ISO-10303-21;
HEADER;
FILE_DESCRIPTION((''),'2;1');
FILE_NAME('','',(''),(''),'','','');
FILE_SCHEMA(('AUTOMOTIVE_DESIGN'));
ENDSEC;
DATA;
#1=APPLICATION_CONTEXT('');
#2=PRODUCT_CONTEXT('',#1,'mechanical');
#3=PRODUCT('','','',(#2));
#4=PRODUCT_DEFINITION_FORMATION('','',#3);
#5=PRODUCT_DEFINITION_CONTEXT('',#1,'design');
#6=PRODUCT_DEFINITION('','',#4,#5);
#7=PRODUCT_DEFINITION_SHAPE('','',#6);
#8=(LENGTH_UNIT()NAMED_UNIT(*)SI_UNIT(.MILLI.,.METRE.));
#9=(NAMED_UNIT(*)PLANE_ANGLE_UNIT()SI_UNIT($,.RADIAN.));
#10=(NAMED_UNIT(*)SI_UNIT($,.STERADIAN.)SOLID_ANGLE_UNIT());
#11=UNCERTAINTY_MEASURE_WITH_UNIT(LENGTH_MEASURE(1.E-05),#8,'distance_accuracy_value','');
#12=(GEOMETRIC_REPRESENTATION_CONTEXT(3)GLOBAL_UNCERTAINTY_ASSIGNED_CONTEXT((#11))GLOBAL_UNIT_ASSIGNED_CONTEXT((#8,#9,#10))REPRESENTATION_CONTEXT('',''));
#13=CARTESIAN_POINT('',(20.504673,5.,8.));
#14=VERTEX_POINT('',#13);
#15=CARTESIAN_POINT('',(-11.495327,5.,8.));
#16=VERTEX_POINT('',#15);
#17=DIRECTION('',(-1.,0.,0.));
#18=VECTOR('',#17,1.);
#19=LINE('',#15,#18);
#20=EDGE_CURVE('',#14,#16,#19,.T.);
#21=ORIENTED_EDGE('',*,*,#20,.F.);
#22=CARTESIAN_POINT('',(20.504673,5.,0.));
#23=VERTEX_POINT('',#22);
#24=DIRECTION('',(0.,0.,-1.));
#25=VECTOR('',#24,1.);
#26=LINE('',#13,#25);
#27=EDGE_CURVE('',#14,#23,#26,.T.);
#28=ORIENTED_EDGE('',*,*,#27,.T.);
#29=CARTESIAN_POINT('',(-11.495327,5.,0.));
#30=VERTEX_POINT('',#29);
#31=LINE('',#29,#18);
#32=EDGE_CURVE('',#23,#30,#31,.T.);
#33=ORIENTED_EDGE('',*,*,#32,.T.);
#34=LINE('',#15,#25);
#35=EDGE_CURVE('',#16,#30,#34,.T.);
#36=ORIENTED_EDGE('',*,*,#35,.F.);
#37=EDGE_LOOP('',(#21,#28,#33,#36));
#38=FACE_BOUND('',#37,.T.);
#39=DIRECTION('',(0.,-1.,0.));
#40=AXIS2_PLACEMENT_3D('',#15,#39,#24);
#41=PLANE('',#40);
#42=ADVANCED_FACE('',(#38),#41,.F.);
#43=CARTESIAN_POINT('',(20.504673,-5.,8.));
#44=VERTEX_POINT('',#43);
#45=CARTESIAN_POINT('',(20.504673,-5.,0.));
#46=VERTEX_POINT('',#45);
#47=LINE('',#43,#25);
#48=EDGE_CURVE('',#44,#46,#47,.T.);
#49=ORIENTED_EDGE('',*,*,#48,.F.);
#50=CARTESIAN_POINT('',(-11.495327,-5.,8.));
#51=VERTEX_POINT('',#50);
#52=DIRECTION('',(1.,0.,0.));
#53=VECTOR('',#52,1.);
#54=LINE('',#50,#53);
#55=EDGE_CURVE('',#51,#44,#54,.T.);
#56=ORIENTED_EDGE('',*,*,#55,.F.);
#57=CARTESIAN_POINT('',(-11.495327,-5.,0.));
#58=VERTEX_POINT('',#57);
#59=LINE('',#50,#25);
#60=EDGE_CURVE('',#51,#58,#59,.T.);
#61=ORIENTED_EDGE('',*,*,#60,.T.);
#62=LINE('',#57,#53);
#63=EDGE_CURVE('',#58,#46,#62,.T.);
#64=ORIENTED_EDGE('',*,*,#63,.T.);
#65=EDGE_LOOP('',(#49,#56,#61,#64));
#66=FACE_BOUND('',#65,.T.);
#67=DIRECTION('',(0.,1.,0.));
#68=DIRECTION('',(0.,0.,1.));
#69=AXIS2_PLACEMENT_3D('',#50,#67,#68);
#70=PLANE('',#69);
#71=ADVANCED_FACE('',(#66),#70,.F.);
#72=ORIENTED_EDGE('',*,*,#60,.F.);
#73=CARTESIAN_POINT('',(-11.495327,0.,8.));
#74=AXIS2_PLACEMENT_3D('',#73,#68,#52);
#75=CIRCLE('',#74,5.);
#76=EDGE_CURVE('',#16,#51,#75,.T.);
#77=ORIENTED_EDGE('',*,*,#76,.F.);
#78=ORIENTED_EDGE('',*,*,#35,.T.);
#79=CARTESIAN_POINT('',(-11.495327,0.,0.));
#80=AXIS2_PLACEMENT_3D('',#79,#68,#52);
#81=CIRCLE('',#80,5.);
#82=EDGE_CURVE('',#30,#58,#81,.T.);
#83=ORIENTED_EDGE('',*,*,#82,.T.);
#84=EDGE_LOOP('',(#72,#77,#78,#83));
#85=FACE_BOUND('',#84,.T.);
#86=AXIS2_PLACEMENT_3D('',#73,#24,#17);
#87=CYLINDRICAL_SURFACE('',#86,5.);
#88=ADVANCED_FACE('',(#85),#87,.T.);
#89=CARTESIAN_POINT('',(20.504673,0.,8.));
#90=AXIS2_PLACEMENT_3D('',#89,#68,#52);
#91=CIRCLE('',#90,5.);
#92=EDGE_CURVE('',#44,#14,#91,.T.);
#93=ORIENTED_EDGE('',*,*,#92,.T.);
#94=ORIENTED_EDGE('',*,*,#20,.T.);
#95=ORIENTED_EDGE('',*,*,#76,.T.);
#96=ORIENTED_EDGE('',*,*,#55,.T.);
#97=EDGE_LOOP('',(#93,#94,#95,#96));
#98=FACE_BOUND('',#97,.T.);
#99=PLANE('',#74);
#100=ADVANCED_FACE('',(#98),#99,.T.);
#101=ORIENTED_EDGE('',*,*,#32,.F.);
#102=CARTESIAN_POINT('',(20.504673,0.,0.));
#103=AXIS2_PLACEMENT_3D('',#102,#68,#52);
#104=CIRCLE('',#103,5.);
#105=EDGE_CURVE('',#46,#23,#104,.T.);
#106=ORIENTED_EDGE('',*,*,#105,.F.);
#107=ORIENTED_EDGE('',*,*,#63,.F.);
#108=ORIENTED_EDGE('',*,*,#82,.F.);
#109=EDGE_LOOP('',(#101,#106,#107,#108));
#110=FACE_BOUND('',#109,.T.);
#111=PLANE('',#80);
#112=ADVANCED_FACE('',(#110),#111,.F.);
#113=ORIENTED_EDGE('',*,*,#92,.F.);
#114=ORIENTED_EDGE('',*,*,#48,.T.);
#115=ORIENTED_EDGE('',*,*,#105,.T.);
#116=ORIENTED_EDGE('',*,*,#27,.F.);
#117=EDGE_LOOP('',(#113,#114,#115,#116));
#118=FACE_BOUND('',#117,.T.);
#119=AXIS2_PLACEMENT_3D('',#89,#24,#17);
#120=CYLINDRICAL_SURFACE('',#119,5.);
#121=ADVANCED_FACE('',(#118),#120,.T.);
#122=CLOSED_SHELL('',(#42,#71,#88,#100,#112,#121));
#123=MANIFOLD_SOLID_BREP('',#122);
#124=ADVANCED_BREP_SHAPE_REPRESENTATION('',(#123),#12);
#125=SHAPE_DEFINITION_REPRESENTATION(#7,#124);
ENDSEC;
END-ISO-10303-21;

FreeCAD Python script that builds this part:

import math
import FreeCAD as App
import Part
import Sketcher
from FreeCAD import Vector
Q = App.Units.Quantity

doc = App.newDocument("Part")
body = doc.addObject("PartDesign::Body", "Body")

# Sketch on XY plane
sketch1 = doc.addObject("Sketcher::SketchObject", "Sketch")
body.addObject(sketch1)
sketch1.AttachmentSupport = (doc.XY_Plane, [""])
sketch1.MapMode = "FlatFace"
sketch1.addGeometry(Part.LineSegment(Vector(21, 5, 0), Vector(-11, 5, 0)), False)
sketch1.addGeometry(Part.ArcOfCircle(Part.Circle(Vector(-11, 0, 0), Vector(0, 0, 1), 5), math.radians(90), math.radians(270)), False)
sketch1.addGeometry(Part.LineSegment(Vector(-11, -5, 0), Vector(21, -5, 0)), False)
sketch1.addGeometry(Part.ArcOfCircle(Part.Circle(Vector(21, 0, 0), Vector(0, 0, 1), 5), math.radians(-90), math.radians(90)), False)
sketch1.addConstraint(Sketcher.Constraint("Tangent", 0, 2, 1, 1))
sketch1.addConstraint(Sketcher.Constraint("Tangent", 1, 2, 2, 1))
sketch1.addConstraint(Sketcher.Constraint("Tangent", 2, 2, 3, 1))
sketch1.addConstraint(Sketcher.Constraint("Tangent", 3, 2, 0, 1))
sketch1.addConstraint(Sketcher.Constraint("Horizontal", 0))
sketch1.addConstraint(Sketcher.Constraint("Horizontal", 2))
sketch1.addConstraint(Sketcher.Constraint("PointOnObject", 1, 3, -1))
sketch1.addConstraint(Sketcher.Constraint("Radius", 1, Q("5 mm")))
sketch1.addConstraint(Sketcher.Constraint("DistanceX", 0, 2, 0, 1, Q("32 mm")))
sketch1.addConstraint(Sketcher.Constraint("DistanceX", 1, 3, -1, 1, Q("11.495327 mm")))
pad1 = doc.addObject("PartDesign::Pad", "Pad")
body.addObject(pad1)
pad1.Profile = sketch1
pad1.Length = 8

doc.recompute()
